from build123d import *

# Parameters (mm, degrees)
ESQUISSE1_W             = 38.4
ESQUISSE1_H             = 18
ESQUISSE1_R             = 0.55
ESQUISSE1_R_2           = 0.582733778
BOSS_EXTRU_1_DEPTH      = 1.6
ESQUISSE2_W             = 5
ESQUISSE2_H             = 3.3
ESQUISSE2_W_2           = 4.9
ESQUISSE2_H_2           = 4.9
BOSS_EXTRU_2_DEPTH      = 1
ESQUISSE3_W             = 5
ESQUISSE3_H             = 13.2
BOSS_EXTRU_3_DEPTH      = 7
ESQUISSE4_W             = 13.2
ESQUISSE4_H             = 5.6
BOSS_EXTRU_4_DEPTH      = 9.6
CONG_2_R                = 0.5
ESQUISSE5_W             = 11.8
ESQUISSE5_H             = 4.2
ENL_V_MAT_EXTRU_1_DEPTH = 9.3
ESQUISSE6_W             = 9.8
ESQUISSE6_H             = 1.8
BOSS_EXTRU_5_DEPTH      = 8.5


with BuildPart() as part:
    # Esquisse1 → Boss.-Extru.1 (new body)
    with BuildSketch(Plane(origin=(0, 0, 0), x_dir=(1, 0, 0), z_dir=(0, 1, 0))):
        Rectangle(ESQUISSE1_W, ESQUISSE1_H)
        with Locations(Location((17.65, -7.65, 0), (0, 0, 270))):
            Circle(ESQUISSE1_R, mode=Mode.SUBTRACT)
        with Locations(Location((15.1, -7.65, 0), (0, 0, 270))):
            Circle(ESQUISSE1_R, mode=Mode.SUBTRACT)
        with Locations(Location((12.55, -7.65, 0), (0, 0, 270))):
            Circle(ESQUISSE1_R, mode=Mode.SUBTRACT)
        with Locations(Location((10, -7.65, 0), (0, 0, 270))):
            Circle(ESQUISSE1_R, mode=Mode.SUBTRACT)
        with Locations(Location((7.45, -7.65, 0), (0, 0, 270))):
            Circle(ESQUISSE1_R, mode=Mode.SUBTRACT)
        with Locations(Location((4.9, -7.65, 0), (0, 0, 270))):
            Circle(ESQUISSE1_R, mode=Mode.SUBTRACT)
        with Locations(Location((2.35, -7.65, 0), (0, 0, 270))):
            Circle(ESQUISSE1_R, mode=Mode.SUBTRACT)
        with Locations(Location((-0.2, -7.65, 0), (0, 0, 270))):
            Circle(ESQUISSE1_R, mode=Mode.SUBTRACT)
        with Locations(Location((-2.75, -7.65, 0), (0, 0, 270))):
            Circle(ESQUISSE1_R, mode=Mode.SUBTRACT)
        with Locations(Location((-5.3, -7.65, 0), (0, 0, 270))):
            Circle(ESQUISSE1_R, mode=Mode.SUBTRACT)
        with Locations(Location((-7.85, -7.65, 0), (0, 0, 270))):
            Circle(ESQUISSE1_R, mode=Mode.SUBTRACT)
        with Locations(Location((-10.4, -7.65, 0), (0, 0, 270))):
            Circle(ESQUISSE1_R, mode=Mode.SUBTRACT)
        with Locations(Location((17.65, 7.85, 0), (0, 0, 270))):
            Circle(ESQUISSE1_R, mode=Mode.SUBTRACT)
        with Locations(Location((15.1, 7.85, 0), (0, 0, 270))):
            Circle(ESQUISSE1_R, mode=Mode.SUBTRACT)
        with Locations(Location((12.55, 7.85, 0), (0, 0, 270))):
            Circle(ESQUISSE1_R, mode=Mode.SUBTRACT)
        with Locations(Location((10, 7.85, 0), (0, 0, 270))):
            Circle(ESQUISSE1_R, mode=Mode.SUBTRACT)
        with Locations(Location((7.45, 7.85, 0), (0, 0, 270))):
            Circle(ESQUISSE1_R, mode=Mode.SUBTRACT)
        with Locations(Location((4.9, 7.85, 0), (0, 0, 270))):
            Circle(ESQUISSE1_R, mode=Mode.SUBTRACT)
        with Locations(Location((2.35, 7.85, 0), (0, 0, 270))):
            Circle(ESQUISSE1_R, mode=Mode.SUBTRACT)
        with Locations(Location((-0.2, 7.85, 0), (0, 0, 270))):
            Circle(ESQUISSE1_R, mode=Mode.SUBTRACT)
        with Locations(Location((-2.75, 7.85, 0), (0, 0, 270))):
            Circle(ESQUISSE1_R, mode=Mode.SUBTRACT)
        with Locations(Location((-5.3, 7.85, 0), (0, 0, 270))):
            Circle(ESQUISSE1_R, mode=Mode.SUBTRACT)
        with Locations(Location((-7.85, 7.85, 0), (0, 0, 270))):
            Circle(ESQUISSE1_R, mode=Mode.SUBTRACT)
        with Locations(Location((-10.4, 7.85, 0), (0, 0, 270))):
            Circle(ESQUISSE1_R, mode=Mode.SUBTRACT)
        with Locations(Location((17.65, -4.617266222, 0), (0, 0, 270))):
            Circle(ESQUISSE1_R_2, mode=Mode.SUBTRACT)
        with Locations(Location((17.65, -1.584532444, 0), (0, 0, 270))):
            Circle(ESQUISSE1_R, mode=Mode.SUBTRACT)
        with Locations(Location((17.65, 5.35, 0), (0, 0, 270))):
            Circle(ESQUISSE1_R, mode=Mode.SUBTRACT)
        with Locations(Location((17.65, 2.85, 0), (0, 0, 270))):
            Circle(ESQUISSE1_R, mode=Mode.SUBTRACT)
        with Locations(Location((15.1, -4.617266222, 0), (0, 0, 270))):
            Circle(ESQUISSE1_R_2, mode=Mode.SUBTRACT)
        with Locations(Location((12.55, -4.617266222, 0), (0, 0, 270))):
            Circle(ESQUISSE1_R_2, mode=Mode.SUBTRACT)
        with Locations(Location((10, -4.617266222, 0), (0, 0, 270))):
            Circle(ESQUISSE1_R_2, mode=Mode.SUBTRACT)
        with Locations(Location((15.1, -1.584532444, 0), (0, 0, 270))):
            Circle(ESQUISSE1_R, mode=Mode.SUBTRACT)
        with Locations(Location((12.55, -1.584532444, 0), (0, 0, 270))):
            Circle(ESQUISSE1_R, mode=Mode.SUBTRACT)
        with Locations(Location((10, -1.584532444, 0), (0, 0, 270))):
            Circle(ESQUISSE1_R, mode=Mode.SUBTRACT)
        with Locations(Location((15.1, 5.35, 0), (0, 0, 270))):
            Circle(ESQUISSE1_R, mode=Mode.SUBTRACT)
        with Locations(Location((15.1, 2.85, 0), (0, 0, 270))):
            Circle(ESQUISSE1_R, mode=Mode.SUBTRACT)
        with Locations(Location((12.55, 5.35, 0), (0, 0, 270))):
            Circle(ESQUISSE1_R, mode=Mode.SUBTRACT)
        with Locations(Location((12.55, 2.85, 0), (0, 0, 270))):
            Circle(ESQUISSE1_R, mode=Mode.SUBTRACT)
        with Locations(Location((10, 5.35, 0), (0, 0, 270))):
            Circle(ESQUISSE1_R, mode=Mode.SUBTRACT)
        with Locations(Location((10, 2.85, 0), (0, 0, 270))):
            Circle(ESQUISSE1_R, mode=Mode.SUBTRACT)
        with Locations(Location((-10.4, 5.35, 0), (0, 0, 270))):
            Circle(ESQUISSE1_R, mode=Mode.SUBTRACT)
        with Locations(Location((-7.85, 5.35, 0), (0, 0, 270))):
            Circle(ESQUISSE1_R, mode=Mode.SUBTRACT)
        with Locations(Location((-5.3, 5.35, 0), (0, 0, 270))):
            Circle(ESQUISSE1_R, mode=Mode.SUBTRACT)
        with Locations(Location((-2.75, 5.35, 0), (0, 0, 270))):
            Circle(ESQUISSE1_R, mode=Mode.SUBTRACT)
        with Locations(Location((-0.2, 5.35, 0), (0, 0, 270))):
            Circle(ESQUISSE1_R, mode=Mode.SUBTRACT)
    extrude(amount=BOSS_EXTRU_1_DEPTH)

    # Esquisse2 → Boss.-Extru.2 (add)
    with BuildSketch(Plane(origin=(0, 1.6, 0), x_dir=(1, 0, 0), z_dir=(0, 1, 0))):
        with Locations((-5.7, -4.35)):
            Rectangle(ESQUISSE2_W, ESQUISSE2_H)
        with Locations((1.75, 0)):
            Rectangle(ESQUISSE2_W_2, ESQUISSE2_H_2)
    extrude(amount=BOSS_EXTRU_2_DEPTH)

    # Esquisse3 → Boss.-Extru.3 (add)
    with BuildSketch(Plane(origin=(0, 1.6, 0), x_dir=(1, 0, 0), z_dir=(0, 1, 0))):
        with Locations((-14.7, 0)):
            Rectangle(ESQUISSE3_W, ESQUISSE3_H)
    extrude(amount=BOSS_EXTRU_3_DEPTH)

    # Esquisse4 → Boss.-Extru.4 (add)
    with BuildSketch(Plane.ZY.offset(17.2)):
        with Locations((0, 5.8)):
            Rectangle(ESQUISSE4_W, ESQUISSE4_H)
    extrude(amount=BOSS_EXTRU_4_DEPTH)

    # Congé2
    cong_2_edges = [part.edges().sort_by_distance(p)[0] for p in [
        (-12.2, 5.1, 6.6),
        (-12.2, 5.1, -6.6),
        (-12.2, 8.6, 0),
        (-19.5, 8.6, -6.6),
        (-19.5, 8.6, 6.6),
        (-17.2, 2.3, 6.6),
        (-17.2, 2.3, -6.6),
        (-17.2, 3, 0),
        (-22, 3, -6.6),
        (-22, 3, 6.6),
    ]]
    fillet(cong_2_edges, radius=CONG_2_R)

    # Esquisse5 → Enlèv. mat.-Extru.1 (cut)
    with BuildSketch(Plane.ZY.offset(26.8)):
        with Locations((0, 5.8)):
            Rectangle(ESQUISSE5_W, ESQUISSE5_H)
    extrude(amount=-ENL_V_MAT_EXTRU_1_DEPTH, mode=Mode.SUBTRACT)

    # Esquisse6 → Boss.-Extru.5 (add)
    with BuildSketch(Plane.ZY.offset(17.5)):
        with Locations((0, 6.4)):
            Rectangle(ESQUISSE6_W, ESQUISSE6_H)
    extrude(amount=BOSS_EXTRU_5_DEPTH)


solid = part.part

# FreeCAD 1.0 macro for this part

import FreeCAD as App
import Part
import Sketcher
from FreeCAD import Vector


def edges_at(feature, points):
    """Names of the edges that pass closest to the given points."""
    edges = feature.Shape.Edges
    near = lambda p: min(range(len(edges)), key=lambda i: edges[i].distToShape(Part.Vertex(*p))[0])
    return sorted({f"Edge{near(p) + 1}" for p in points})

doc = App.newDocument("Part")
body = doc.addObject("PartDesign::Body", "Body")

sketch1 = body.newObject("Sketcher::SketchObject", "Sketch")
sketch1.AttachmentSupport = (doc.getObject("XZ_Plane"), [""])
sketch1.MapMode = "FlatFace"
sketch1.addGeometry([
    Part.LineSegment(Vector(-19.2, -9, 0), Vector(-19.2, 9, 0)),
    Part.LineSegment(Vector(-19.2, 9, 0), Vector(19.2, 9, 0)),
    Part.LineSegment(Vector(19.2, 9, 0), Vector(19.2, -9, 0)),
    Part.LineSegment(Vector(19.2, -9, 0), Vector(-19.2, -9, 0)),
    Part.Circle(Vector(-10.4, 7.7, 0), Vector(0, 0, 1), 0.6),
    Part.Circle(Vector(-7.8, 7.7, 0), Vector(0, 0, 1), 0.6),
    Part.Circle(Vector(-5.3, 7.7, 0), Vector(0, 0, 1), 0.6),
    Part.Circle(Vector(-2.8, 7.7, 0), Vector(0, 0, 1), 0.6),
    Part.Circle(Vector(-0.2, 7.7, 0), Vector(0, 0, 1), 0.6),
    Part.Circle(Vector(2.4, 7.7, 0), Vector(0, 0, 1), 0.6),
    Part.Circle(Vector(4.9, 7.7, 0), Vector(0, 0, 1), 0.6),
    Part.Circle(Vector(7.5, 7.7, 0), Vector(0, 0, 1), 0.6),
    Part.Circle(Vector(10, 7.7, 0), Vector(0, 0, 1), 0.6),
    Part.Circle(Vector(10, 4.6, 0), Vector(0, 0, 1), 0.6),
    Part.Circle(Vector(12.6, 7.7, 0), Vector(0, 0, 1), 0.6),
    Part.Circle(Vector(15.1, 7.7, 0), Vector(0, 0, 1), 0.6),
    Part.Circle(Vector(17.6, 7.7, 0), Vector(0, 0, 1), 0.6),
    Part.Circle(Vector(12.6, 4.6, 0), Vector(0, 0, 1), 0.6),
    Part.Circle(Vector(15.1, 4.6, 0), Vector(0, 0, 1), 0.6),
    Part.Circle(Vector(17.6, 4.6, 0), Vector(0, 0, 1), 0.6),
    Part.Circle(Vector(10, 1.6, 0), Vector(0, 0, 1), 0.6),
    Part.Circle(Vector(12.6, 1.6, 0), Vector(0, 0, 1), 0.6),
    Part.Circle(Vector(15.1, 1.6, 0), Vector(0, 0, 1), 0.6),
    Part.Circle(Vector(17.6, 1.6, 0), Vector(0, 0, 1), 0.6),
    Part.Circle(Vector(-10.4, -5.3, 0), Vector(0, 0, 1), 0.6),
    Part.Circle(Vector(-7.8, -5.3, 0), Vector(0, 0, 1), 0.6),
    Part.Circle(Vector(-5.3, -5.3, 0), Vector(0, 0, 1), 0.6),
    Part.Circle(Vector(-10.4, -7.8, 0), Vector(0, 0, 1), 0.6),
    Part.Circle(Vector(-7.8, -7.8, 0), Vector(0, 0, 1), 0.6),
    Part.Circle(Vector(-5.3, -7.8, 0), Vector(0, 0, 1), 0.6),
    Part.Circle(Vector(-2.8, -5.3, 0), Vector(0, 0, 1), 0.6),
    Part.Circle(Vector(-0.2, -5.3, 0), Vector(0, 0, 1), 0.6),
    Part.Circle(Vector(-2.8, -7.8, 0), Vector(0, 0, 1), 0.6),
    Part.Circle(Vector(-0.2, -7.8, 0), Vector(0, 0, 1), 0.6),
    Part.Circle(Vector(2.4, -7.8, 0), Vector(0, 0, 1), 0.6),
    Part.Circle(Vector(10, -2.9, 0), Vector(0, 0, 1), 0.6),
    Part.Circle(Vector(12.6, -2.9, 0), Vector(0, 0, 1), 0.6),
    Part.Circle(Vector(15.1, -2.9, 0), Vector(0, 0, 1), 0.6),
    Part.Circle(Vector(17.6, -2.9, 0), Vector(0, 0, 1), 0.6),
    Part.Circle(Vector(10, -5.3, 0), Vector(0, 0, 1), 0.6),
    Part.Circle(Vector(4.9, -7.8, 0), Vector(0, 0, 1), 0.6),
    Part.Circle(Vector(7.5, -7.8, 0), Vector(0, 0, 1), 0.6),
    Part.Circle(Vector(10, -7.8, 0), Vector(0, 0, 1), 0.6),
    Part.Circle(Vector(12.6, -5.3, 0), Vector(0, 0, 1), 0.6),
    Part.Circle(Vector(15.1, -5.3, 0), Vector(0, 0, 1), 0.6),
    Part.Circle(Vector(17.6, -5.3, 0), Vector(0, 0, 1), 0.6),
    Part.Circle(Vector(12.6, -7.8, 0), Vector(0, 0, 1), 0.6),
    Part.Circle(Vector(15.1, -7.8, 0), Vector(0, 0, 1), 0.6),
    Part.Circle(Vector(17.6, -7.8, 0), Vector(0, 0, 1), 0.6),
], False)
sketch1.addConstraint([
    Sketcher.Constraint("Coincident", 0, 2, 1, 1),
    Sketcher.Constraint("Coincident", 1, 2, 2, 1),
    Sketcher.Constraint("Coincident", 2, 2, 3, 1),
    Sketcher.Constraint("Coincident", 3, 2, 0, 1),
    Sketcher.Constraint("Vertical", 0),
    Sketcher.Constraint("Horizontal", 1),
    Sketcher.Constraint("Vertical", 2),
    Sketcher.Constraint("Horizontal", 3),
    Sketcher.Constraint("Equal", 4, 5),
    Sketcher.Constraint("Equal", 5, 6),
    Sketcher.Constraint("Equal", 6, 7),
    Sketcher.Constraint("Equal", 7, 8),
    Sketcher.Constraint("Equal", 8, 9),
    Sketcher.Constraint("Equal", 9, 10),
    Sketcher.Constraint("Equal", 10, 11),
    Sketcher.Constraint("Equal", 11, 12),
    Sketcher.Constraint("Equal", 12, 14),
    Sketcher.Constraint("Equal", 14, 15),
    Sketcher.Constraint("Equal", 15, 16),
    Sketcher.Constraint("Equal", 13, 17),
    Sketcher.Constraint("Equal", 17, 18),
    Sketcher.Constraint("Equal", 18, 19),
    Sketcher.Constraint("Equal", 16, 20),
    Sketcher.Constraint("Equal", 20, 21),
    Sketcher.Constraint("Equal", 21, 22),
    Sketcher.Constraint("Equal", 22, 23),
    Sketcher.Constraint("Equal", 23, 24),
    Sketcher.Constraint("Equal", 24, 25),
    Sketcher.Constraint("Equal", 25, 26),
    Sketcher.Constraint("Equal", 26, 27),
    Sketcher.Constraint("Equal", 27, 28),
    Sketcher.Constraint("Equal", 28, 29),
    Sketcher.Constraint("Equal", 29, 30),
    Sketcher.Constraint("Equal", 30, 31),
    Sketcher.Constraint("Equal", 31, 32),
    Sketcher.Constraint("Equal", 32, 33),
    Sketcher.Constraint("Equal", 33, 34),
    Sketcher.Constraint("Equal", 34, 35),
    Sketcher.Constraint("Equal", 35, 36),
    Sketcher.Constraint("Equal", 36, 37),
    Sketcher.Constraint("Equal", 37, 38),
    Sketcher.Constraint("Equal", 38, 39),
    Sketcher.Constraint("Equal", 39, 40),
    Sketcher.Constraint("Equal", 40, 41),
    Sketcher.Constraint("Equal", 41, 42),
    Sketcher.Constraint("Equal", 42, 43),
    Sketcher.Constraint("Equal", 43, 44),
    Sketcher.Constraint("Equal", 44, 45),
    Sketcher.Constraint("Equal", 45, 46),
    Sketcher.Constraint("Equal", 46, 47),
    Sketcher.Constraint("Equal", 47, 48),
    Sketcher.Constraint("Symmetric", 0, 2, 2, 2, -1, 1),
    Sketcher.Constraint("Horizontal", 4, 3, 5, 3),
    Sketcher.Constraint("Horizontal", 5, 3, 6, 3),
    Sketcher.Constraint("Horizontal", 6, 3, 7, 3),
    Sketcher.Constraint("Horizontal", 7, 3, 8, 3),
    Sketcher.Constraint("Horizontal", 8, 3, 9, 3),
    Sketcher.Constraint("Horizontal", 9, 3, 10, 3),
    Sketcher.Constraint("Horizontal", 10, 3, 11, 3),
    Sketcher.Constraint("Horizontal", 11, 3, 12, 3),
    Sketcher.Constraint("Horizontal", 12, 3, 14, 3),
    Sketcher.Constraint("Horizontal", 14, 3, 15, 3),
    Sketcher.Constraint("Horizontal", 15, 3, 16, 3),
    Sketcher.Constraint("Horizontal", 13, 3, 17, 3),
    Sketcher.Constraint("Horizontal", 17, 3, 18, 3),
    Sketcher.Constraint("Horizontal", 18, 3, 19, 3),
    Sketcher.Constraint("Horizontal", 20, 3, 21, 3),
    Sketcher.Constraint("Horizontal", 21, 3, 22, 3),
    Sketcher.Constraint("Horizontal", 22, 3, 23, 3),
    Sketcher.Constraint("Horizontal", 24, 3, 25, 3),
    Sketcher.Constraint("Horizontal", 25, 3, 26, 3),
    Sketcher.Constraint("Horizontal", 27, 3, 28, 3),
    Sketcher.Constraint("Horizontal", 28, 3, 29, 3),
    Sketcher.Constraint("Horizontal", 26, 3, 30, 3),
    Sketcher.Constraint("Horizontal", 30, 3, 31, 3),
    Sketcher.Constraint("Horizontal", 29, 3, 32, 3),
    Sketcher.Constraint("Horizontal", 32, 3, 33, 3),
    Sketcher.Constraint("Horizontal", 33, 3, 34, 3),
    Sketcher.Constraint("Horizontal", 35, 3, 36, 3),
    Sketcher.Constraint("Horizontal", 36, 3, 37, 3),
    Sketcher.Constraint("Horizontal", 37, 3, 38, 3),
    Sketcher.Constraint("Horizontal", 31, 3, 39, 3),
    Sketcher.Constraint("Horizontal", 34, 3, 40, 3),
    Sketcher.Constraint("Horizontal", 40, 3, 41, 3),
    Sketcher.Constraint("Horizontal", 41, 3, 42, 3),
    Sketcher.Constraint("Horizontal", 39, 3, 43, 3),
    Sketcher.Constraint("Horizontal", 43, 3, 44, 3),
    Sketcher.Constraint("Horizontal", 44, 3, 45, 3),
    Sketcher.Constraint("Horizontal", 42, 3, 46, 3),
    Sketcher.Constraint("Horizontal", 46, 3, 47, 3),
    Sketcher.Constraint("Horizontal", 47, 3, 48, 3),
    Sketcher.Constraint("Vertical", 12, 3, 13, 3),
    Sketcher.Constraint("Vertical", 14, 3, 17, 3),
    Sketcher.Constraint("Vertical", 15, 3, 18, 3),
    Sketcher.Constraint("Vertical", 16, 3, 19, 3),
    Sketcher.Constraint("Vertical", 13, 3, 20, 3),
    Sketcher.Constraint("Vertical", 17, 3, 21, 3),
    Sketcher.Constraint("Vertical", 18, 3, 22, 3),
    Sketcher.Constraint("Vertical", 19, 3, 23, 3),
    Sketcher.Constraint("Vertical", 4, 3, 24, 3),
    Sketcher.Constraint("Vertical", 5, 3, 25, 3),
    Sketcher.Constraint("Vertical", 6, 3, 26, 3),
    Sketcher.Constraint("Vertical", 24, 3, 27, 3),
    Sketcher.Constraint("Vertical", 25, 3, 28, 3),
    Sketcher.Constraint("Vertical", 26, 3, 29, 3),
    Sketcher.Constraint("Vertical", 7, 3, 30, 3),
    Sketcher.Constraint("Vertical", 8, 3, 31, 3),
    Sketcher.Constraint("Vertical", 30, 3, 32, 3),
    Sketcher.Constraint("Vertical", 31, 3, 33, 3),
    Sketcher.Constraint("Vertical", 9, 3, 34, 3),
    Sketcher.Constraint("Vertical", 20, 3, 35, 3),
    Sketcher.Constraint("Vertical", 21, 3, 36, 3),
    Sketcher.Constraint("Vertical", 22, 3, 37, 3),
    Sketcher.Constraint("Vertical", 23, 3, 38, 3),
    Sketcher.Constraint("Vertical", 35, 3, 39, 3),
    Sketcher.Constraint("Vertical", 10, 3, 40, 3),
    Sketcher.Constraint("Vertical", 11, 3, 41, 3),
    Sketcher.Constraint("Vertical", 39, 3, 42, 3),
    Sketcher.Constraint("Vertical", 36, 3, 43, 3),
    Sketcher.Constraint("Vertical", 37, 3, 44, 3),
    Sketcher.Constraint("Vertical", 38, 3, 45, 3),
    Sketcher.Constraint("Vertical", 43, 3, 46, 3),
    Sketcher.Constraint("Vertical", 44, 3, 47, 3),
    Sketcher.Constraint("Vertical", 45, 3, 48, 3),
    Sketcher.Constraint("Diameter", 4, 1.1),
    Sketcher.Constraint("DistanceY", 0, 1, 0, 2, 18.0),
    Sketcher.Constraint("DistanceX", 1, 1, 1, 2, 38.4),
    Sketcher.Constraint("DistanceX", -1, 1, 12, 3, 10.0),
    Sketcher.Constraint("DistanceY", 24, 3, 4, 3, 13.0),
    Sketcher.Constraint("DistanceY", 40, 3, 35, 3, 5.0),
    Sketcher.Constraint("DistanceX", 4, 3, -1, 1, 10.4),
    Sketcher.Constraint("DistanceX", 6, 3, -1, 1, 5.3),
    Sketcher.Constraint("DistanceX", 8, 3, -1, 1, 0.2),
    Sketcher.Constraint("DistanceX", -1, 1, 10, 3, 4.9),
    Sketcher.Constraint("DistanceX", -1, 1, 15, 3, 15.1),
    Sketcher.Constraint("DistanceX", 5, 3, 7, 3, 5.1),
    Sketcher.Constraint("DistanceX", 7, 3, 9, 3, 5.1),
    Sketcher.Constraint("DistanceX", 9, 3, 11, 3, 5.1),
    Sketcher.Constraint("DistanceX", 11, 3, 14, 3, 5.1),
    Sketcher.Constraint("DistanceX", 14, 3, 16, 3, 5.1),
    Sketcher.Constraint("DistanceY", 27, 3, 24, 3, 2.5),
    Sketcher.Constraint("DistanceY", -1, 1, 4, 3, 7.65),
    Sketcher.Constraint("DistanceX", 5, 3, -1, 1, 7.85),
    Sketcher.Constraint("Diameter", 13, 1.165468),
    Sketcher.Constraint("DistanceY", -1, 1, 13, 3, 4.617266),
    Sketcher.Constraint("DistanceY", -1, 1, 20, 3, 1.584532),
])
pad1 = body.newObject("PartDesign::Pad", "Pad")
pad1.Profile = sketch1
pad1.Length = 1.6
pad1.Reversed = True

sketch2 = body.newObject("Sketcher::SketchObject", "Sketch001")
sketch2.AttachmentSupport = (doc.getObject("XZ_Plane"), [""])
sketch2.MapMode = "FlatFace"
sketch2.AttachmentOffset = App.Placement(Vector(0, 0, -1.6), App.Rotation())
sketch2.addGeometry([
    Part.LineSegment(Vector(-8.2, 2.7, 0), Vector(-8.2, 6, 0)),
    Part.LineSegment(Vector(-8.2, 6, 0), Vector(-3.2, 6, 0)),
    Part.LineSegment(Vector(-3.2, 6, 0), Vector(-3.2, 2.7, 0)),
    Part.LineSegment(Vector(-3.2, 2.7, 0), Vector(-8.2, 2.7, 0)),
    Part.LineSegment(Vector(-0.7, -2.5, 0), Vector(-0.7, 2.5, 0)),
    Part.LineSegment(Vector(-0.7, 2.5, 0), Vector(4.2, 2.5, 0)),
    Part.LineSegment(Vector(4.2, 2.5, 0), Vector(4.2, -2.5, 0)),
    Part.LineSegment(Vector(4.2, -2.5, 0), Vector(-0.7, -2.5, 0)),
], False)
sketch2.addConstraint([
    Sketcher.Constraint("Coincident", 0, 2, 1, 1),
    Sketcher.Constraint("Coincident", 1, 2, 2, 1),
    Sketcher.Constraint("Coincident", 2, 2, 3, 1),
    Sketcher.Constraint("Coincident", 3, 2, 0, 1),
    Sketcher.Constraint("Coincident", 4, 2, 5, 1),
    Sketcher.Constraint("Coincident", 5, 2, 6, 1),
    Sketcher.Constraint("Coincident", 6, 2, 7, 1),
    Sketcher.Constraint("Coincident", 7, 2, 4, 1),
    Sketcher.Constraint("Vertical", 0),
    Sketcher.Constraint("Horizontal", 1),
    Sketcher.Constraint("Vertical", 2),
    Sketcher.Constraint("Horizontal", 3),
    Sketcher.Constraint("Vertical", 4),
    Sketcher.Constraint("Horizontal", 5),
    Sketcher.Constraint("Vertical", 6),
    Sketcher.Constraint("Horizontal", 7),
    Sketcher.Constraint("Equal", 7, 4),
    Sketcher.Constraint("DistanceX", 1, 1, 1, 2, 5.0),
    Sketcher.Constraint("DistanceX", 5, 1, 5, 2, 4.9),
    Sketcher.Constraint("DistanceY", 0, 1, 0, 2, 3.3),
    Sketcher.Constraint("DistanceY", -1, 1, 0, 2, 6.0),
    Sketcher.Constraint("DistanceX", 0, 2, -1, 1, 8.2),
    Sketcher.Constraint("DistanceX", 4, 2, -1, 1, 0.7),
    Sketcher.Constraint("DistanceY", -1, 1, 4, 2, 2.45),
])
pad2 = body.newObject("PartDesign::Pad", "Pad001")
pad2.Profile = sketch2
pad2.Length = 1
pad2.Reversed = True

sketch3 = body.newObject("Sketcher::SketchObject", "Sketch002")
sketch3.AttachmentSupport = (doc.getObject("XZ_Plane"), [""])
sketch3.MapMode = "FlatFace"
sketch3.AttachmentOffset = App.Placement(Vector(0, 0, -1.6), App.Rotation())
sketch3.addGeometry([
    Part.LineSegment(Vector(-17, -7, 0), Vector(-17, 7, 0)),
    Part.LineSegment(Vector(-17, 7, 0), Vector(-12, 7, 0)),
    Part.LineSegment(Vector(-12, 7, 0), Vector(-12, -7, 0)),
    Part.LineSegment(Vector(-12, -7, 0), Vector(-17, -7, 0)),
], False)
sketch3.addConstraint([
    Sketcher.Constraint("Coincident", 0, 2, 1, 1),
    Sketcher.Constraint("Coincident", 1, 2, 2, 1),
    Sketcher.Constraint("Coincident", 2, 2, 3, 1),
    Sketcher.Constraint("Coincident", 3, 2, 0, 1),
    Sketcher.Constraint("Vertical", 0),
    Sketcher.Constraint("Horizontal", 1),
    Sketcher.Constraint("Vertical", 2),
    Sketcher.Constraint("Horizontal", 3),
    Sketcher.Constraint("DistanceX", 1, 1, 1, 2, 5.0),
    Sketcher.Constraint("DistanceY", 0, 1, 0, 2, 13.2),
    Sketcher.Constraint("DistanceX", 0, 2, -1, 1, 17.2),
    Sketcher.Constraint("DistanceY", -1, 1, 0, 2, 6.6),
])
pad3 = body.newObject("PartDesign::Pad", "Pad002")
pad3.Profile = sketch3
pad3.Length = 7
pad3.Reversed = True

sketch4 = body.newObject("Sketcher::SketchObject", "Sketch003")
sketch4.AttachmentSupport = (doc.getObject("YZ_Plane"), [""])
sketch4.MapMode = "FlatFace"
sketch4.AttachmentOffset = App.Placement(Vector(0, 0, -17.2), App.Rotation())
sketch4.addGeometry([
    Part.LineSegment(Vector(9, -7, 0), Vector(3, -7, 0)),
    Part.LineSegment(Vector(3, -7, 0), Vector(3, 7, 0)),
    Part.LineSegment(Vector(3, 7, 0), Vector(9, 7, 0)),
    Part.LineSegment(Vector(9, 7, 0), Vector(9, -7, 0)),
], False)
sketch4.addConstraint([
    Sketcher.Constraint("Coincident", 0, 2, 1, 1),
    Sketcher.Constraint("Coincident", 1, 2, 2, 1),
    Sketcher.Constraint("Coincident", 2, 2, 3, 1),
    Sketcher.Constraint("Coincident", 3, 2, 0, 1),
    Sketcher.Constraint("Horizontal", 0),
    Sketcher.Constraint("Vertical", 1),
    Sketcher.Constraint("Horizontal", 2),
    Sketcher.Constraint("Vertical", 3),
    Sketcher.Constraint("DistanceX", 0, 2, 0, 1, 5.6),
    Sketcher.Constraint("DistanceY", 1, 1, 1, 2, 13.2),
    Sketcher.Constraint("DistanceX", -1, 1, 0, 2, 3.0),
    Sketcher.Constraint("DistanceY", 0, 2, -1, 1, 6.6),
])
pad4 = body.newObject("PartDesign::Pad", "Pad003")
pad4.Profile = sketch4
pad4.Length = 9.6
pad4.Reversed = True
doc.recompute()

fillet = body.newObject("PartDesign::Fillet", "Fillet")
fillet.Base = (pad4, edges_at(pad4, [
    (-12.2, 5.1, 6.6),
    (-12.2, 5.1, -6.6),
    (-12.2, 8.6, 0),
    (-19.5, 8.6, -6.6),
    (-19.5, 8.6, 6.6),
    (-17.2, 2.3, 6.6),
    (-17.2, 2.3, -6.6),
    (-17.2, 3, 0),
    (-22, 3, -6.6),
    (-22, 3, 6.6),
]))
fillet.Radius = 0.5

sketch5 = body.newObject("Sketcher::SketchObject", "Sketch004")
sketch5.AttachmentSupport = (doc.getObject("YZ_Plane"), [""])
sketch5.MapMode = "FlatFace"
sketch5.AttachmentOffset = App.Placement(Vector(0, 0, -26.8), App.Rotation())
sketch5.addGeometry([
    Part.LineSegment(Vector(7.9, -5.9, 0), Vector(3.7, -5.9, 0)),
    Part.LineSegment(Vector(3.7, -5.9, 0), Vector(3.7, 5.9, 0)),
    Part.LineSegment(Vector(3.7, 5.9, 0), Vector(7.9, 5.9, 0)),
    Part.LineSegment(Vector(7.9, 5.9, 0), Vector(7.9, -5.9, 0)),
], False)
sketch5.addConstraint([
    Sketcher.Constraint("Coincident", 0, 2, 1, 1),
    Sketcher.Constraint("Coincident", 1, 2, 2, 1),
    Sketcher.Constraint("Coincident", 2, 2, 3, 1),
    Sketcher.Constraint("Coincident", 3, 2, 0, 1),
    Sketcher.Constraint("Horizontal", 0),
    Sketcher.Constraint("Vertical", 1),
    Sketcher.Constraint("Horizontal", 2),
    Sketcher.Constraint("Vertical", 3),
    Sketcher.Constraint("DistanceX", 0, 2, 0, 1, 4.2),
    Sketcher.Constraint("DistanceY", 1, 1, 1, 2, 11.8),
    Sketcher.Constraint("DistanceX", -1, 1, 0, 2, 3.7),
    Sketcher.Constraint("DistanceY", 0, 2, -1, 1, 5.9),
])
pocket1 = body.newObject("PartDesign::Pocket", "Pocket")
pocket1.Profile = sketch5
pocket1.Length = 9.3
pocket1.Reversed = True

sketch6 = body.newObject("Sketcher::SketchObject", "Sketch005")
sketch6.AttachmentSupport = (doc.getObject("YZ_Plane"), [""])
sketch6.MapMode = "FlatFace"
sketch6.AttachmentOffset = App.Placement(Vector(0, 0, -17.5), App.Rotation())
sketch6.addGeometry([
    Part.LineSegment(Vector(7.3, -4.9, 0), Vector(5.5, -4.9, 0)),
    Part.LineSegment(Vector(5.5, -4.9, 0), Vector(5.5, 4.9, 0)),
    Part.LineSegment(Vector(5.5, 4.9, 0), Vector(7.3, 4.9, 0)),
    Part.LineSegment(Vector(7.3, 4.9, 0), Vector(7.3, -4.9, 0)),
], False)
sketch6.addConstraint([
    Sketcher.Constraint("Coincident", 0, 2, 1, 1),
    Sketcher.Constraint("Coincident", 1, 2, 2, 1),
    Sketcher.Constraint("Coincident", 2, 2, 3, 1),
    Sketcher.Constraint("Coincident", 3, 2, 0, 1),
    Sketcher.Constraint("Horizontal", 0),
    Sketcher.Constraint("Vertical", 1),
    Sketcher.Constraint("Horizontal", 2),
    Sketcher.Constraint("Vertical", 3),
    Sketcher.Constraint("DistanceX", 0, 2, 0, 1, 1.8),
    Sketcher.Constraint("DistanceY", 1, 1, 1, 2, 9.8),
    Sketcher.Constraint("DistanceX", -1, 1, 0, 2, 5.5),
    Sketcher.Constraint("DistanceY", 0, 2, -1, 1, 4.9),
])
pad5 = body.newObject("PartDesign::Pad", "Pad004")
pad5.Profile = sketch6
pad5.Length = 8.5
pad5.Reversed = True

doc.recompute()
